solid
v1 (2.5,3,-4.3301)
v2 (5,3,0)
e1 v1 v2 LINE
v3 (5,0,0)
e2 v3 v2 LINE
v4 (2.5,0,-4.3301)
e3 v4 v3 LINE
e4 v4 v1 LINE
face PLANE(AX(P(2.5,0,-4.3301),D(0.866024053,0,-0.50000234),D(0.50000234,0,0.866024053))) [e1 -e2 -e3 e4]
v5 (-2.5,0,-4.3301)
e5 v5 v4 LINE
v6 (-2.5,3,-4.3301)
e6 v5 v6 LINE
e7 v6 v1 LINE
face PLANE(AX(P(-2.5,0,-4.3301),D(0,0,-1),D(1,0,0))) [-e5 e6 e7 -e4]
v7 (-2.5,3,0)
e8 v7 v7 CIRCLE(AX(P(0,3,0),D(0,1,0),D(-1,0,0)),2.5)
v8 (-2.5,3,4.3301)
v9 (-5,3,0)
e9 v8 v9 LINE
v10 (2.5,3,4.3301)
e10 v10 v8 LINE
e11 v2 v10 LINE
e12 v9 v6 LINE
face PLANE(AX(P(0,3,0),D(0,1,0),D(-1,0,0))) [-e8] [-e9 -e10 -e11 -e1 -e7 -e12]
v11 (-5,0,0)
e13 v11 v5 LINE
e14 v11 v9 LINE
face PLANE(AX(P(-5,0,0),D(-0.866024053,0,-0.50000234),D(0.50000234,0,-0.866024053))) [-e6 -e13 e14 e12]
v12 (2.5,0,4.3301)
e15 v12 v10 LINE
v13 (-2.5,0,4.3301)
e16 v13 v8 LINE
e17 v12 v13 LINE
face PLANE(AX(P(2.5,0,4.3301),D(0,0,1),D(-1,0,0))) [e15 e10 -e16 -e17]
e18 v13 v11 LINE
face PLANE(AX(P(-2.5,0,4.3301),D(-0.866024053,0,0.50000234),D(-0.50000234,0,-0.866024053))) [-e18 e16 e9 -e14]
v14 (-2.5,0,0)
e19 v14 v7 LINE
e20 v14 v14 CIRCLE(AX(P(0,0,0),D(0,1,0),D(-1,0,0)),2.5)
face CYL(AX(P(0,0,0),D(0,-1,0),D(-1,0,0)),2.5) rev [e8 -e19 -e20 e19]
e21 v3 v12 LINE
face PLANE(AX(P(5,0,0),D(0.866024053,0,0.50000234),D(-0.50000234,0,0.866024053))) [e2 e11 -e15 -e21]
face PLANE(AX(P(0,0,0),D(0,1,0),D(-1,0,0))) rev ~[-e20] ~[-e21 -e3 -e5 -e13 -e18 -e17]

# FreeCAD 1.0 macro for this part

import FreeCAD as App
import Part
import Sketcher

V = App.Vector

doc = App.newDocument("Part")
body = doc.addObject("PartDesign::Body", "Body")

# Sketch on XZ plane
sketch1 = body.newObject("Sketcher::SketchObject", "Sketch")
sketch1.AttachmentSupport = (doc.getObject("XZ_Plane"), [""])
sketch1.MapMode = "FlatFace"
sketch1.addGeometry(Part.LineSegment(V(-2.5, -4.3301, 0), V(-5, 0, 0)), False)
sketch1.addGeometry(Part.LineSegment(V(-5, 0, 0), V(-2.5, 4.3301, 0)), False)
sketch1.addGeometry(Part.LineSegment(V(-2.5, 4.3301, 0), V(2.5, 4.3301, 0)), False)
sketch1.addGeometry(Part.LineSegment(V(2.5, 4.3301, 0), V(5, 0, 0)), False)
sketch1.addGeometry(Part.LineSegment(V(5, 0, 0), V(2.5, -4.3301, 0)), False)
sketch1.addGeometry(Part.LineSegment(V(2.5, -4.3301, 0), V(-2.5, -4.3301, 0)), False)
sketch1.addGeometry(Part.Circle(V(0, 0, 0), V(0, 0, 1), 2.5), False)
sketch1.addConstraint(Sketcher.Constraint("Coincident", 0, 2, 1, 1))
sketch1.addConstraint(Sketcher.Constraint("Coincident", 1, 2, 2, 1))
sketch1.addConstraint(Sketcher.Constraint("Coincident", 2, 2, 3, 1))
sketch1.addConstraint(Sketcher.Constraint("Coincident", 3, 2, 4, 1))
sketch1.addConstraint(Sketcher.Constraint("Coincident", 4, 2, 5, 1))
sketch1.addConstraint(Sketcher.Constraint("Coincident", 5, 2, 0, 1))
sketch1.addConstraint(Sketcher.Constraint("Horizontal", 2))
sketch1.addConstraint(Sketcher.Constraint("Horizontal", 5))
sketch1.addConstraint(Sketcher.Constraint("Coincident", 6, 3, -1, 1))
sketch1.addConstraint(Sketcher.Constraint("Symmetric", 0, 2, 3, 2, -1, 1))
sketch1.addConstraint(Sketcher.Constraint("Symmetric", 1, 2, 4, 2, -1, 1))
sketch1.addConstraint(Sketcher.Constraint("PointOnObject", 0, 2, -1))
sketch1.addConstraint(Sketcher.Constraint("Parallel", 0, 3))
sketch1.addConstraint(Sketcher.Constraint("Vertical", 2, 2, 4, 2))
sketch1.addConstraint(Sketcher.Constraint("Diameter", 6, 5.0))
sketch1.addConstraint(Sketcher.Constraint("DistanceX", 2, 1, 2, 2, 5.0))
sketch1.addConstraint(Sketcher.Constraint("Distance", 0, 5.0))
sketch1.addConstraint(Sketcher.Constraint("DistanceX", 0, 2, -1, 1, 5.0))
pad1 = body.newObject("PartDesign::Pad", "Pad")
pad1.Profile = sketch1
pad1.Length = 3
pad1.Reversed = True

doc.recompute()
